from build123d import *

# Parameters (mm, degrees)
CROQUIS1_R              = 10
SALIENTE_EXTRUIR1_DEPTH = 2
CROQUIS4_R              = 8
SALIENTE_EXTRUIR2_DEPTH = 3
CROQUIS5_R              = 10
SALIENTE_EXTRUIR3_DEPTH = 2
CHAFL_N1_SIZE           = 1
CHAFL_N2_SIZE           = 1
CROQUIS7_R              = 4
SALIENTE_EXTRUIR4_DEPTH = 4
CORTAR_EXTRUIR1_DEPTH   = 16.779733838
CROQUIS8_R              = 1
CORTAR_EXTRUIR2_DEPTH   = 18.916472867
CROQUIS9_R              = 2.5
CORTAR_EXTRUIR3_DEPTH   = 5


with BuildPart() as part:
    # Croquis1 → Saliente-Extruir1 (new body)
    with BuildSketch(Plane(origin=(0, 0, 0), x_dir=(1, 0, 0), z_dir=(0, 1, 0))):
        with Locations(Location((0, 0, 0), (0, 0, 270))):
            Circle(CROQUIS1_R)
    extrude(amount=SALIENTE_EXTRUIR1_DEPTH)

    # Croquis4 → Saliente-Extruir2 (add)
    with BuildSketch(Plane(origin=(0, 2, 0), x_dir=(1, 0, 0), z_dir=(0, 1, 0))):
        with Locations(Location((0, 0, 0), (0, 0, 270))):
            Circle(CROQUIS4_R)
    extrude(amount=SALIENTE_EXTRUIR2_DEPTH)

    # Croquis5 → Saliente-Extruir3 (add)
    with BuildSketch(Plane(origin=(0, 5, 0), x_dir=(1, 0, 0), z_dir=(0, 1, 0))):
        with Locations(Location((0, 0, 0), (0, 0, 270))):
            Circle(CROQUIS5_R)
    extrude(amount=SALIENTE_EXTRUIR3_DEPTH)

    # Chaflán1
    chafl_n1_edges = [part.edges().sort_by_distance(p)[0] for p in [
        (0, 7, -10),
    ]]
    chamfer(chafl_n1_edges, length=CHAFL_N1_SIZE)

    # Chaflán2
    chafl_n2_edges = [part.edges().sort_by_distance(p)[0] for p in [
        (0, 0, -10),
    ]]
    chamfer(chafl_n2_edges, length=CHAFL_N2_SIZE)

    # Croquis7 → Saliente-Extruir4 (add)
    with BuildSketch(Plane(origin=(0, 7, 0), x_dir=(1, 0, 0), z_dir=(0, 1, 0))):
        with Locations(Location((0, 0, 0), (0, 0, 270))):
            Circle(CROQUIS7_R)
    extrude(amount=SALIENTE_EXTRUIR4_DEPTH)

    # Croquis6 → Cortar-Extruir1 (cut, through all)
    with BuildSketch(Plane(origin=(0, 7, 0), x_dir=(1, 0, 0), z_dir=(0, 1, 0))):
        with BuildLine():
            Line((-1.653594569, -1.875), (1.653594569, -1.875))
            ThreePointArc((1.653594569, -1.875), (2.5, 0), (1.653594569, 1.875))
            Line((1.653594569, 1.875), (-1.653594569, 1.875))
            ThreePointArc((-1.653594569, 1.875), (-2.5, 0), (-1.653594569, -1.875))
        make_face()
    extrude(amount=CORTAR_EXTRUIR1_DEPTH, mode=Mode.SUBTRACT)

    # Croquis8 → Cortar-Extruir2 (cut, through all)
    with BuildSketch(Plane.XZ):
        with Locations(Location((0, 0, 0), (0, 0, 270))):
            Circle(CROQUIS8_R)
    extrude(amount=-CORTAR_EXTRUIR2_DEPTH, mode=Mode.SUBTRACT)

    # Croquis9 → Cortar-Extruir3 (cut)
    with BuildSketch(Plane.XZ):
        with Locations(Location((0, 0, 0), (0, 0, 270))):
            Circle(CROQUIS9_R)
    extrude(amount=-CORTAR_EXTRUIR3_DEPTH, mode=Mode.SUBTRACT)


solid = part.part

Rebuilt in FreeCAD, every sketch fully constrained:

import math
import FreeCAD as App
import Part
import Sketcher
Q = App.Units.Quantity


def edges_at(feature, points):
    """Names of the edges that pass closest to the given points."""
    edges = feature.Shape.Edges
    near = lambda p: min(range(len(edges)), key=lambda i: edges[i].distToShape(Part.Vertex(*p))[0])
    return sorted({f"Edge{near(p) + 1}" for p in points})

doc = App.newDocument("Part")
params = doc.addObject("Spreadsheet::Sheet", "Params")
for row, (alias, value) in enumerate([
    ("sketch1_diameter", "20 mm"),
    ("pad1_length", "2 mm"),
    ("sketch2_diameter", "16 mm"),
    ("pad2_length", "3 mm"),
    ("sketch3_diameter", "20 mm"),
    ("pad3_length", "2 mm"),
    ("chamfer_size", "1 mm"),
    ("chamfer2_size", "1 mm"),
    ("sketch4_diameter", "8 mm"),
    ("pad4_length", "4 mm"),
    ("sketch5_radius", "2.5 mm"),
    ("sketch6_diameter", "2 mm"),
    ("sketch7_diameter", "5 mm"),
    ("pocket3_length", "5 mm"),
], start=1):
    params.set(f"A{row}", alias)
    params.set(f"B{row}", "=" + value)
    params.setAlias(f"B{row}", alias)

body = doc.addObject("PartDesign::Body", "Body")

# Sketch on XZ plane
sketch1 = body.newObject("Sketcher::SketchObject", "Sketch")
sketch1.AttachmentSupport = (doc.getObject("XZ_Plane"), [""])
sketch1.MapMode = "FlatFace"
sketch1.addGeometry(Part.Circle(App.Vector(0, 0, 0), App.Vector(0, 0, 1), 10), False)
sketch1.addConstraint([
    Sketcher.Constraint("Coincident", 0, 3, -1, 1),
    Sketcher.Constraint("Diameter", 0, Q("20 mm")),
])
sketch1.setExpression("Constraints[1]", "Params.sketch1_diameter")
pad1 = body.newObject("PartDesign::Pad", "Pad")
pad1.Profile = sketch1
pad1.setExpression("Length", "Params.pad1_length")
pad1.Reversed = True

# Sketch on XZ plane
sketch2 = body.newObject("Sketcher::SketchObject", "Sketch001")
sketch2.AttachmentSupport = (doc.getObject("XZ_Plane"), [""])
sketch2.MapMode = "FlatFace"
sketch2.AttachmentOffset = App.Placement(App.Vector(0, 0, -2), App.Rotation())
sketch2.addGeometry(Part.Circle(App.Vector(0, 0, 0), App.Vector(0, 0, 1), 8), False)
sketch2.addConstraint([
    Sketcher.Constraint("Coincident", 0, 3, -1, 1),
    Sketcher.Constraint("Diameter", 0, Q("16 mm")),
])
sketch2.setExpression("Constraints[1]", "Params.sketch2_diameter")
pad2 = body.newObject("PartDesign::Pad", "Pad001")
pad2.Profile = sketch2
pad2.setExpression("Length", "Params.pad2_length")
pad2.Reversed = True

# Sketch on XZ plane
sketch3 = body.newObject("Sketcher::SketchObject", "Sketch002")
sketch3.AttachmentSupport = (doc.getObject("XZ_Plane"), [""])
sketch3.MapMode = "FlatFace"
sketch3.AttachmentOffset = App.Placement(App.Vector(0, 0, -5), App.Rotation())
sketch3.addGeometry(Part.Circle(App.Vector(0, 0, 0), App.Vector(0, 0, 1), 10), False)
sketch3.addConstraint([
    Sketcher.Constraint("Coincident", 0, 3, -1, 1),
    Sketcher.Constraint("Diameter", 0, Q("20 mm")),
])
sketch3.setExpression("Constraints[1]", "Params.sketch3_diameter")
pad3 = body.newObject("PartDesign::Pad", "Pad002")
pad3.Profile = sketch3
pad3.setExpression("Length", "Params.pad3_length")
pad3.Reversed = True
doc.recompute()

chamfer = body.newObject("PartDesign::Chamfer", "Chamfer")
chamfer.Base = (pad3, edges_at(pad3, [(0, 7, -10)]))
chamfer.setExpression("Size", "Params.chamfer_size")
doc.recompute()

chamfer2 = body.newObject("PartDesign::Chamfer", "Chamfer001")
chamfer2.Base = (chamfer, edges_at(chamfer, [(0, 0, -10)]))
chamfer2.setExpression("Size", "Params.chamfer2_size")

# Sketch on XZ plane
sketch4 = body.newObject("Sketcher::SketchObject", "Sketch003")
sketch4.AttachmentSupport = (doc.getObject("XZ_Plane"), [""])
sketch4.MapMode = "FlatFace"
sketch4.AttachmentOffset = App.Placement(App.Vector(0, 0, -7), App.Rotation())
sketch4.addGeometry(Part.Circle(App.Vector(0, 0, 0), App.Vector(0, 0, 1), 4), False)
sketch4.addConstraint([
    Sketcher.Constraint("Coincident", 0, 3, -1, 1),
    Sketcher.Constraint("Diameter", 0, Q("8 mm")),
])
sketch4.setExpression("Constraints[1]", "Params.sketch4_diameter")
pad4 = body.newObject("PartDesign::Pad", "Pad003")
pad4.Profile = sketch4
pad4.setExpression("Length", "Params.pad4_length")
pad4.Reversed = True

# Sketch on XZ plane
sketch5 = body.newObject("Sketcher::SketchObject", "Sketch004")
sketch5.AttachmentSupport = (doc.getObject("XZ_Plane"), [""])
sketch5.MapMode = "FlatFace"
sketch5.AttachmentOffset = App.Placement(App.Vector(0, 0, -7), App.Rotation())
sketch5.addGeometry([
    Part.LineSegment(App.Vector(-1.7, 1.9, 0), App.Vector(1.7, 1.9, 0)),
    Part.ArcOfCircle(Part.Circle(App.Vector(0, 0, 0), App.Vector(0, 0, 1), 2.5), math.radians(-49), math.radians(49)),
    Part.LineSegment(App.Vector(1.7, -1.9, 0), App.Vector(-1.7, -1.9, 0)),
    Part.ArcOfCircle(Part.Circle(App.Vector(0, 0, 0), App.Vector(0, 0, 1), 2.5), math.radians(131), math.radians(229)),
], False)
sketch5.addConstraint([
    Sketcher.Constraint("Coincident", 0, 2, 1, 2),
    Sketcher.Constraint("Coincident", 1, 1, 2, 1),
    Sketcher.Constraint("Coincident", 2, 2, 3, 2),
    Sketcher.Constraint("Coincident", 3, 1, 0, 1),
    Sketcher.Constraint("Horizontal", 0),
    Sketcher.Constraint("Horizontal", 2),
    Sketcher.Constraint("Coincident", 1, 3, -1, 1),
    Sketcher.Constraint("Coincident", 3, 3, -1, 1),
    Sketcher.Constraint("Equal", 1, 3),
    Sketcher.Constraint("Vertical", 0, 2, 1, 1),
    Sketcher.Constraint("Radius", 1, Q("2.5 mm")),
    Sketcher.Constraint("DistanceY", 1, 1, 0, 2, Q("3.75 mm")),
])
sketch5.setExpression("Constraints[10]", "Params.sketch5_radius")
pocket1 = body.newObject("PartDesign::Pocket", "Pocket")
pocket1.Profile = sketch5
pocket1.Type = "ThroughAll"

# Sketch on XZ plane
sketch6 = body.newObject("Sketcher::SketchObject", "Sketch005")
sketch6.AttachmentSupport = (doc.getObject("XZ_Plane"), [""])
sketch6.MapMode = "FlatFace"
sketch6.addGeometry(Part.Circle(App.Vector(0, 0, 0), App.Vector(0, 0, 1), 1), False)
sketch6.addConstraint([
    Sketcher.Constraint("Coincident", 0, 3, -1, 1),
    Sketcher.Constraint("Diameter", 0, Q("2 mm")),
])
sketch6.setExpression("Constraints[1]", "Params.sketch6_diameter")
pocket2 = body.newObject("PartDesign::Pocket", "Pocket001")
pocket2.Profile = sketch6
pocket2.Type = "ThroughAll"

# Sketch on XZ plane
sketch7 = body.newObject("Sketcher::SketchObject", "Sketch006")
sketch7.AttachmentSupport = (doc.getObject("XZ_Plane"), [""])
sketch7.MapMode = "FlatFace"
sketch7.addGeometry(Part.Circle(App.Vector(0, 0, 0), App.Vector(0, 0, 1), 2.5), False)
sketch7.addConstraint([
    Sketcher.Constraint("Coincident", 0, 3, -1, 1),
    Sketcher.Constraint("Diameter", 0, Q("5 mm")),
])
sketch7.setExpression("Constraints[1]", "Params.sketch7_diameter")
pocket3 = body.newObject("PartDesign::Pocket", "Pocket002")
pocket3.Profile = sketch7
pocket3.setExpression("Length", "Params.pocket3_length")

doc.recompute()
